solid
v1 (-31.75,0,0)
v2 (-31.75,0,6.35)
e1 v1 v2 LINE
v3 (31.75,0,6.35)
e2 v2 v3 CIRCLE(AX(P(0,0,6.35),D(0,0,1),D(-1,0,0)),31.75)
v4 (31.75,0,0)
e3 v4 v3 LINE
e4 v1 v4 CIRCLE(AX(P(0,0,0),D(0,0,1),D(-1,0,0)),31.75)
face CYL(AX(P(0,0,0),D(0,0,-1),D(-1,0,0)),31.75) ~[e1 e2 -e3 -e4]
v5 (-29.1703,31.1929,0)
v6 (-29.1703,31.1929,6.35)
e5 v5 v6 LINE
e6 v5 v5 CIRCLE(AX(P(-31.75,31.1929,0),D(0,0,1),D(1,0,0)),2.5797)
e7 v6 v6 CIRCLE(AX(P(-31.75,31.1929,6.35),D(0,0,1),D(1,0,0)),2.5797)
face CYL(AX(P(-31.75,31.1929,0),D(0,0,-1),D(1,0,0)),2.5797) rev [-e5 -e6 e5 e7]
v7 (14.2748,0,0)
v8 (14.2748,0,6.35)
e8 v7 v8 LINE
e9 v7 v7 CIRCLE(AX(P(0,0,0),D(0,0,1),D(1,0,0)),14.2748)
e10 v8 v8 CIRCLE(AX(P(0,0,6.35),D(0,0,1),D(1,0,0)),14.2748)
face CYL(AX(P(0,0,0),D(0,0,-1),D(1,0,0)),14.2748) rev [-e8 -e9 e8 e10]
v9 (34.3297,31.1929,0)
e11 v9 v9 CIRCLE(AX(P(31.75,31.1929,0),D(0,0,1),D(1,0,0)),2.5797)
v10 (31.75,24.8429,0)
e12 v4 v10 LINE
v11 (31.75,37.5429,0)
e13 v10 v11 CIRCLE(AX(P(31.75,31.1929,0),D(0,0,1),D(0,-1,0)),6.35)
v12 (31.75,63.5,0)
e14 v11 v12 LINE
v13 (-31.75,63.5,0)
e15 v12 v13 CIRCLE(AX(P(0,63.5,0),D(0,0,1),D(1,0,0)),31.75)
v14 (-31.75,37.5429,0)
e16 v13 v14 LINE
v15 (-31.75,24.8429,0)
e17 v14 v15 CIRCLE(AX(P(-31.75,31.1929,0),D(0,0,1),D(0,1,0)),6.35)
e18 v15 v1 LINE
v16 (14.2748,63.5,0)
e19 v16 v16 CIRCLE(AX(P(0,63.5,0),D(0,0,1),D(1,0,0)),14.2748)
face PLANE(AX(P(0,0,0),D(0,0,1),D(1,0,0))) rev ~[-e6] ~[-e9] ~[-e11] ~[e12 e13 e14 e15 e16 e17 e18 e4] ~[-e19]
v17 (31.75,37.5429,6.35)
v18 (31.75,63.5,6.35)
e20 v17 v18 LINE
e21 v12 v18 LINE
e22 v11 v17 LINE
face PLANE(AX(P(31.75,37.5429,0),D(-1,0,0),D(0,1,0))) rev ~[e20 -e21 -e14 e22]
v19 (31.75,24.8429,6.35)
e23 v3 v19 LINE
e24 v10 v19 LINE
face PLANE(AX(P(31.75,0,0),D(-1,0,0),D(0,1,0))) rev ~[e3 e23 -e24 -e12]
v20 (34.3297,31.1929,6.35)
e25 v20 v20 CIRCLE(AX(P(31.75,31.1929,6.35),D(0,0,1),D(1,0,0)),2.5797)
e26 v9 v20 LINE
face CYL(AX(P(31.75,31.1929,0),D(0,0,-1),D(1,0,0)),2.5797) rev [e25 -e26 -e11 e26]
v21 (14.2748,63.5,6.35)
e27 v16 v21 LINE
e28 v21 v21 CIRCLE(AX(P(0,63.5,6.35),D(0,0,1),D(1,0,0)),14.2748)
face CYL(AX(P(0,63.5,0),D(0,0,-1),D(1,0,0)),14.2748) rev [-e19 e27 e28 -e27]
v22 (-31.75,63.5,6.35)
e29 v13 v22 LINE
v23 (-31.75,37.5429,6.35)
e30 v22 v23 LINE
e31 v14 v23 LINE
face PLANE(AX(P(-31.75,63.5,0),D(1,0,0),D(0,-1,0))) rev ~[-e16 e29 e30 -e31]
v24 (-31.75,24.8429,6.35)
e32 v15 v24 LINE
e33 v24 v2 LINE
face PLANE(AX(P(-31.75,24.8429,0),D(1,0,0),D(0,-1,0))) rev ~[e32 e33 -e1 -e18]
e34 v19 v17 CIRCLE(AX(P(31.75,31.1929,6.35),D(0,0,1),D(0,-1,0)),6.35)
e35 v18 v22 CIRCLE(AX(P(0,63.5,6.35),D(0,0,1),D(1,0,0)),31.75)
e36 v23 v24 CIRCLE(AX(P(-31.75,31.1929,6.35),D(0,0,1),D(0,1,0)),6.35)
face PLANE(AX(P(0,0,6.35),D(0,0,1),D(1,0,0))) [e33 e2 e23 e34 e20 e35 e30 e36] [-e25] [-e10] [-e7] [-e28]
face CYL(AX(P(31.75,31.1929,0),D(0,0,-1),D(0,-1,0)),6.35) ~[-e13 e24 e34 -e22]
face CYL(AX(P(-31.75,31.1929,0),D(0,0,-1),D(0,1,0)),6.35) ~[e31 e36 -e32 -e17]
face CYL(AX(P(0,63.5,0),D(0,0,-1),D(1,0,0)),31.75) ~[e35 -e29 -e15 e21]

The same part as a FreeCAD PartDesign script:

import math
import FreeCAD as App
import Part
import Sketcher
from FreeCAD import Vector
Q = App.Units.Quantity

doc = App.newDocument("Part")
body = doc.addObject("PartDesign::Body", "Body")

sketch1 = body.newObject("Sketcher::SketchObject", "Sketch")
sketch1.AttachmentSupport = (doc.getObject("XY_Plane"), [""])
sketch1.MapMode = "FlatFace"
sketch1.addGeometry(Part.LineSegment(Vector(31.8, 37.5, 0), Vector(31.8, 63.5, 0)), False)
sketch1.addGeometry(Part.ArcOfCircle(Part.Circle(Vector(0, 63.5, 0), Vector(0, 0, 1), 31.8), math.radians(0), math.radians(180)), False)
sketch1.addGeometry(Part.LineSegment(Vector(-31.8, 63.5, 0), Vector(-31.8, 37.5, 0)), False)
sketch1.addGeometry(Part.ArcOfCircle(Part.Circle(Vector(-31.8, 31.2, 0), Vector(0, 0, 1), 6.4), math.radians(90), math.radians(270)), False)
sketch1.addGeometry(Part.LineSegment(Vector(-31.8, 24.8, 0), Vector(-31.8, 0, 0)), False)
sketch1.addGeometry(Part.ArcOfCircle(Part.Circle(Vector(0, 0, 0), Vector(0, 0, 1), 31.8), math.radians(180), math.radians(360)), False)
sketch1.addGeometry(Part.LineSegment(Vector(31.8, 0, 0), Vector(31.8, 24.8, 0)), False)
sketch1.addGeometry(Part.ArcOfCircle(Part.Circle(Vector(31.8, 31.2, 0), Vector(0, 0, 1), 6.4), math.radians(-90), math.radians(90)), False)
sketch1.addGeometry(Part.Circle(Vector(-31.8, 31.2, 0), Vector(0, 0, 1), 2.6), False)
sketch1.addGeometry(Part.Circle(Vector(0, 0, 0), Vector(0, 0, 1), 14.3), False)
sketch1.addGeometry(Part.Circle(Vector(31.8, 31.2, 0), Vector(0, 0, 1), 2.6), False)
sketch1.addGeometry(Part.Circle(Vector(0, 63.5, 0), Vector(0, 0, 1), 14.3), False)
sketch1.addConstraint(Sketcher.Constraint("Tangent", 0, 2, 1, 1))
sketch1.addConstraint(Sketcher.Constraint("Tangent", 1, 2, 2, 1))
sketch1.addConstraint(Sketcher.Constraint("Coincident", 2, 2, 3, 1))
sketch1.addConstraint(Sketcher.Constraint("Coincident", 3, 2, 4, 1))
sketch1.addConstraint(Sketcher.Constraint("Tangent", 4, 2, 5, 1))
sketch1.addConstraint(Sketcher.Constraint("Tangent", 5, 2, 6, 1))
sketch1.addConstraint(Sketcher.Constraint("Coincident", 6, 2, 7, 1))
sketch1.addConstraint(Sketcher.Constraint("Coincident", 7, 2, 0, 1))
sketch1.addConstraint(Sketcher.Constraint("Vertical", 0))
sketch1.addConstraint(Sketcher.Constraint("Vertical", 2))
sketch1.addConstraint(Sketcher.Constraint("Vertical", 4))
sketch1.addConstraint(Sketcher.Constraint("Vertical", 6))
sketch1.addConstraint(Sketcher.Constraint("Coincident", 5, 3, -1, 1))
sketch1.addConstraint(Sketcher.Constraint("Coincident", 9, 3, -1, 1))
sketch1.addConstraint(Sketcher.Constraint("Coincident", 8, 3, 3, 3))
sketch1.addConstraint(Sketcher.Constraint("Coincident", 10, 3, 7, 3))
sketch1.addConstraint(Sketcher.Constraint("Coincident", 11, 3, 1, 3))
sketch1.addConstraint(Sketcher.Constraint("Equal", 1, 5))
sketch1.addConstraint(Sketcher.Constraint("Equal", 3, 7))
sketch1.addConstraint(Sketcher.Constraint("Equal", 8, 10))
sketch1.addConstraint(Sketcher.Constraint("Equal", 9, 11))
sketch1.addConstraint(Sketcher.Constraint("Symmetric", 3, 3, 7, 3, -2))
sketch1.addConstraint(Sketcher.Constraint("PointOnObject", 1, 3, -2))
sketch1.addConstraint(Sketcher.Constraint("Vertical", 10, 3, 0, 2))
sketch1.addConstraint(Sketcher.Constraint("Radius", 1, Q("1.25 in")))
sketch1.addConstraint(Sketcher.Constraint("Radius", 3, Q("0.25 in")))
sketch1.addConstraint(Sketcher.Constraint("Diameter", 8, Q("0.203126 in")))
sketch1.addConstraint(Sketcher.Constraint("Diameter", 9, Q("1.124 in")))
sketch1.addConstraint(Sketcher.Constraint("DistanceY", -1, 1, 1, 3, Q("2.5 in")))
sketch1.addConstraint(Sketcher.Constraint("DistanceY", 0, 1, 0, 2, 25.957))
pad1 = body.newObject("PartDesign::Pad", "Pad")
pad1.Profile = sketch1
pad1.Length = Q("0.25 in")

doc.recompute()
